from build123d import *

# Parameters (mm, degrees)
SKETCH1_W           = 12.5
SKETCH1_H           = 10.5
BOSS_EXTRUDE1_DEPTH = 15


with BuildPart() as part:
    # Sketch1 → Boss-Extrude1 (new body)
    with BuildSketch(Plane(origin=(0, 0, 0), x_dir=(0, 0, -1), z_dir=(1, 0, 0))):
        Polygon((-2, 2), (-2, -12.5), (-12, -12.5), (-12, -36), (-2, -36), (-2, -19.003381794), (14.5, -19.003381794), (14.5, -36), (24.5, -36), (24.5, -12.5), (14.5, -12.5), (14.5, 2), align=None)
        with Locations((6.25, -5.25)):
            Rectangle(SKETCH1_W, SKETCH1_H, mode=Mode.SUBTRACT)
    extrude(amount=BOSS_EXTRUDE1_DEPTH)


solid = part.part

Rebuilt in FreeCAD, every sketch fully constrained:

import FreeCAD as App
import Part
import Sketcher
from FreeCAD import Vector
Q = App.Units.Quantity


def add_polygon(sketch, points):
    """Adds a closed chain of lines whose ends are joined by coincident constraints."""
    first, n = sketch.GeometryCount, len(points)
    for a, b in zip(points, points[1:] + points[:1]):
        sketch.addGeometry(Part.LineSegment(App.Vector(*a, 0), App.Vector(*b, 0)), False)
    for i in range(n):
        sketch.addConstraint(Sketcher.Constraint("Coincident", first + i, 2, first + (i + 1) % n, 1))

doc = App.newDocument("Part")
body = doc.addObject("PartDesign::Body", "Body")

sketch1 = doc.addObject("Sketcher::SketchObject", "Sketch")
body.addObject(sketch1)
sketch1.AttachmentSupport = (doc.YZ_Plane, [""])
sketch1.MapMode = "FlatFace"
add_polygon(sketch1, [(2, 2), (-12, 2), (-12, 12), (-36, 12), (-36, 2), (-19, 2), (-19, -14), (-36, -14), (-36, -24), (-12, -24), (-12, -14), (2, -14)])
add_polygon(sketch1, [(-10, -12), (-10, 0), (0, 0), (0, -12)])
sketch1.addConstraint(Sketcher.Constraint("Horizontal", 0))
sketch1.addConstraint(Sketcher.Constraint("Vertical", 1))
sketch1.addConstraint(Sketcher.Constraint("Horizontal", 2))
sketch1.addConstraint(Sketcher.Constraint("Vertical", 3))
sketch1.addConstraint(Sketcher.Constraint("Horizontal", 4))
sketch1.addConstraint(Sketcher.Constraint("Vertical", 5))
sketch1.addConstraint(Sketcher.Constraint("Horizontal", 6))
sketch1.addConstraint(Sketcher.Constraint("Vertical", 7))
sketch1.addConstraint(Sketcher.Constraint("Horizontal", 8))
sketch1.addConstraint(Sketcher.Constraint("Vertical", 9))
sketch1.addConstraint(Sketcher.Constraint("Horizontal", 10))
sketch1.addConstraint(Sketcher.Constraint("Vertical", 11))
sketch1.addConstraint(Sketcher.Constraint("Vertical", 12))
sketch1.addConstraint(Sketcher.Constraint("Horizontal", 13))
sketch1.addConstraint(Sketcher.Constraint("Vertical", 14))
sketch1.addConstraint(Sketcher.Constraint("Horizontal", 15))
sketch1.addConstraint(Sketcher.Constraint("Coincident", 13, 2, -1, 1))
sketch1.addConstraint(Sketcher.Constraint("Horizontal", 0, 2, 3, 2))
sketch1.addConstraint(Sketcher.Constraint("Horizontal", 6, 2, 9, 2))
sketch1.addConstraint(Sketcher.Constraint("Vertical", 3, 2, 6, 2))
sketch1.addConstraint(Sketcher.Constraint("Vertical", 1, 2, 8, 2))
sketch1.addConstraint(Sketcher.Constraint("Equal", 3, 7))
sketch1.addConstraint(Sketcher.Constraint("DistanceY", 1, 1, 1, 2, Q("10 mm")))
sketch1.addConstraint(Sketcher.Constraint("DistanceX", 0, 2, 0, 1, Q("14.5 mm")))
sketch1.addConstraint(Sketcher.Constraint("DistanceX", 2, 2, 2, 1, Q("23.5 mm")))
sketch1.addConstraint(Sketcher.Constraint("DistanceX", 13, 1, 13, 2, Q("10.5 mm")))
sketch1.addConstraint(Sketcher.Constraint("DistanceY", 5, 2, 5, 1, Q("16.5 mm")))
sketch1.addConstraint(Sketcher.Constraint("DistanceY", 12, 1, 12, 2, Q("12.5 mm")))
sketch1.addConstraint(Sketcher.Constraint("DistanceY", -1, 1, 0, 2, Q("2 mm")))
sketch1.addConstraint(Sketcher.Constraint("DistanceX", 2, 2, -1, 1, Q("36 mm")))
sketch1.addConstraint(Sketcher.Constraint("DistanceX", 4, 1, 4, 2, Q("16.996618 mm")))
pad1 = doc.addObject("PartDesign::Pad", "Pad")
body.addObject(pad1)
pad1.Profile = sketch1
pad1.Length = 15

doc.recompute()
